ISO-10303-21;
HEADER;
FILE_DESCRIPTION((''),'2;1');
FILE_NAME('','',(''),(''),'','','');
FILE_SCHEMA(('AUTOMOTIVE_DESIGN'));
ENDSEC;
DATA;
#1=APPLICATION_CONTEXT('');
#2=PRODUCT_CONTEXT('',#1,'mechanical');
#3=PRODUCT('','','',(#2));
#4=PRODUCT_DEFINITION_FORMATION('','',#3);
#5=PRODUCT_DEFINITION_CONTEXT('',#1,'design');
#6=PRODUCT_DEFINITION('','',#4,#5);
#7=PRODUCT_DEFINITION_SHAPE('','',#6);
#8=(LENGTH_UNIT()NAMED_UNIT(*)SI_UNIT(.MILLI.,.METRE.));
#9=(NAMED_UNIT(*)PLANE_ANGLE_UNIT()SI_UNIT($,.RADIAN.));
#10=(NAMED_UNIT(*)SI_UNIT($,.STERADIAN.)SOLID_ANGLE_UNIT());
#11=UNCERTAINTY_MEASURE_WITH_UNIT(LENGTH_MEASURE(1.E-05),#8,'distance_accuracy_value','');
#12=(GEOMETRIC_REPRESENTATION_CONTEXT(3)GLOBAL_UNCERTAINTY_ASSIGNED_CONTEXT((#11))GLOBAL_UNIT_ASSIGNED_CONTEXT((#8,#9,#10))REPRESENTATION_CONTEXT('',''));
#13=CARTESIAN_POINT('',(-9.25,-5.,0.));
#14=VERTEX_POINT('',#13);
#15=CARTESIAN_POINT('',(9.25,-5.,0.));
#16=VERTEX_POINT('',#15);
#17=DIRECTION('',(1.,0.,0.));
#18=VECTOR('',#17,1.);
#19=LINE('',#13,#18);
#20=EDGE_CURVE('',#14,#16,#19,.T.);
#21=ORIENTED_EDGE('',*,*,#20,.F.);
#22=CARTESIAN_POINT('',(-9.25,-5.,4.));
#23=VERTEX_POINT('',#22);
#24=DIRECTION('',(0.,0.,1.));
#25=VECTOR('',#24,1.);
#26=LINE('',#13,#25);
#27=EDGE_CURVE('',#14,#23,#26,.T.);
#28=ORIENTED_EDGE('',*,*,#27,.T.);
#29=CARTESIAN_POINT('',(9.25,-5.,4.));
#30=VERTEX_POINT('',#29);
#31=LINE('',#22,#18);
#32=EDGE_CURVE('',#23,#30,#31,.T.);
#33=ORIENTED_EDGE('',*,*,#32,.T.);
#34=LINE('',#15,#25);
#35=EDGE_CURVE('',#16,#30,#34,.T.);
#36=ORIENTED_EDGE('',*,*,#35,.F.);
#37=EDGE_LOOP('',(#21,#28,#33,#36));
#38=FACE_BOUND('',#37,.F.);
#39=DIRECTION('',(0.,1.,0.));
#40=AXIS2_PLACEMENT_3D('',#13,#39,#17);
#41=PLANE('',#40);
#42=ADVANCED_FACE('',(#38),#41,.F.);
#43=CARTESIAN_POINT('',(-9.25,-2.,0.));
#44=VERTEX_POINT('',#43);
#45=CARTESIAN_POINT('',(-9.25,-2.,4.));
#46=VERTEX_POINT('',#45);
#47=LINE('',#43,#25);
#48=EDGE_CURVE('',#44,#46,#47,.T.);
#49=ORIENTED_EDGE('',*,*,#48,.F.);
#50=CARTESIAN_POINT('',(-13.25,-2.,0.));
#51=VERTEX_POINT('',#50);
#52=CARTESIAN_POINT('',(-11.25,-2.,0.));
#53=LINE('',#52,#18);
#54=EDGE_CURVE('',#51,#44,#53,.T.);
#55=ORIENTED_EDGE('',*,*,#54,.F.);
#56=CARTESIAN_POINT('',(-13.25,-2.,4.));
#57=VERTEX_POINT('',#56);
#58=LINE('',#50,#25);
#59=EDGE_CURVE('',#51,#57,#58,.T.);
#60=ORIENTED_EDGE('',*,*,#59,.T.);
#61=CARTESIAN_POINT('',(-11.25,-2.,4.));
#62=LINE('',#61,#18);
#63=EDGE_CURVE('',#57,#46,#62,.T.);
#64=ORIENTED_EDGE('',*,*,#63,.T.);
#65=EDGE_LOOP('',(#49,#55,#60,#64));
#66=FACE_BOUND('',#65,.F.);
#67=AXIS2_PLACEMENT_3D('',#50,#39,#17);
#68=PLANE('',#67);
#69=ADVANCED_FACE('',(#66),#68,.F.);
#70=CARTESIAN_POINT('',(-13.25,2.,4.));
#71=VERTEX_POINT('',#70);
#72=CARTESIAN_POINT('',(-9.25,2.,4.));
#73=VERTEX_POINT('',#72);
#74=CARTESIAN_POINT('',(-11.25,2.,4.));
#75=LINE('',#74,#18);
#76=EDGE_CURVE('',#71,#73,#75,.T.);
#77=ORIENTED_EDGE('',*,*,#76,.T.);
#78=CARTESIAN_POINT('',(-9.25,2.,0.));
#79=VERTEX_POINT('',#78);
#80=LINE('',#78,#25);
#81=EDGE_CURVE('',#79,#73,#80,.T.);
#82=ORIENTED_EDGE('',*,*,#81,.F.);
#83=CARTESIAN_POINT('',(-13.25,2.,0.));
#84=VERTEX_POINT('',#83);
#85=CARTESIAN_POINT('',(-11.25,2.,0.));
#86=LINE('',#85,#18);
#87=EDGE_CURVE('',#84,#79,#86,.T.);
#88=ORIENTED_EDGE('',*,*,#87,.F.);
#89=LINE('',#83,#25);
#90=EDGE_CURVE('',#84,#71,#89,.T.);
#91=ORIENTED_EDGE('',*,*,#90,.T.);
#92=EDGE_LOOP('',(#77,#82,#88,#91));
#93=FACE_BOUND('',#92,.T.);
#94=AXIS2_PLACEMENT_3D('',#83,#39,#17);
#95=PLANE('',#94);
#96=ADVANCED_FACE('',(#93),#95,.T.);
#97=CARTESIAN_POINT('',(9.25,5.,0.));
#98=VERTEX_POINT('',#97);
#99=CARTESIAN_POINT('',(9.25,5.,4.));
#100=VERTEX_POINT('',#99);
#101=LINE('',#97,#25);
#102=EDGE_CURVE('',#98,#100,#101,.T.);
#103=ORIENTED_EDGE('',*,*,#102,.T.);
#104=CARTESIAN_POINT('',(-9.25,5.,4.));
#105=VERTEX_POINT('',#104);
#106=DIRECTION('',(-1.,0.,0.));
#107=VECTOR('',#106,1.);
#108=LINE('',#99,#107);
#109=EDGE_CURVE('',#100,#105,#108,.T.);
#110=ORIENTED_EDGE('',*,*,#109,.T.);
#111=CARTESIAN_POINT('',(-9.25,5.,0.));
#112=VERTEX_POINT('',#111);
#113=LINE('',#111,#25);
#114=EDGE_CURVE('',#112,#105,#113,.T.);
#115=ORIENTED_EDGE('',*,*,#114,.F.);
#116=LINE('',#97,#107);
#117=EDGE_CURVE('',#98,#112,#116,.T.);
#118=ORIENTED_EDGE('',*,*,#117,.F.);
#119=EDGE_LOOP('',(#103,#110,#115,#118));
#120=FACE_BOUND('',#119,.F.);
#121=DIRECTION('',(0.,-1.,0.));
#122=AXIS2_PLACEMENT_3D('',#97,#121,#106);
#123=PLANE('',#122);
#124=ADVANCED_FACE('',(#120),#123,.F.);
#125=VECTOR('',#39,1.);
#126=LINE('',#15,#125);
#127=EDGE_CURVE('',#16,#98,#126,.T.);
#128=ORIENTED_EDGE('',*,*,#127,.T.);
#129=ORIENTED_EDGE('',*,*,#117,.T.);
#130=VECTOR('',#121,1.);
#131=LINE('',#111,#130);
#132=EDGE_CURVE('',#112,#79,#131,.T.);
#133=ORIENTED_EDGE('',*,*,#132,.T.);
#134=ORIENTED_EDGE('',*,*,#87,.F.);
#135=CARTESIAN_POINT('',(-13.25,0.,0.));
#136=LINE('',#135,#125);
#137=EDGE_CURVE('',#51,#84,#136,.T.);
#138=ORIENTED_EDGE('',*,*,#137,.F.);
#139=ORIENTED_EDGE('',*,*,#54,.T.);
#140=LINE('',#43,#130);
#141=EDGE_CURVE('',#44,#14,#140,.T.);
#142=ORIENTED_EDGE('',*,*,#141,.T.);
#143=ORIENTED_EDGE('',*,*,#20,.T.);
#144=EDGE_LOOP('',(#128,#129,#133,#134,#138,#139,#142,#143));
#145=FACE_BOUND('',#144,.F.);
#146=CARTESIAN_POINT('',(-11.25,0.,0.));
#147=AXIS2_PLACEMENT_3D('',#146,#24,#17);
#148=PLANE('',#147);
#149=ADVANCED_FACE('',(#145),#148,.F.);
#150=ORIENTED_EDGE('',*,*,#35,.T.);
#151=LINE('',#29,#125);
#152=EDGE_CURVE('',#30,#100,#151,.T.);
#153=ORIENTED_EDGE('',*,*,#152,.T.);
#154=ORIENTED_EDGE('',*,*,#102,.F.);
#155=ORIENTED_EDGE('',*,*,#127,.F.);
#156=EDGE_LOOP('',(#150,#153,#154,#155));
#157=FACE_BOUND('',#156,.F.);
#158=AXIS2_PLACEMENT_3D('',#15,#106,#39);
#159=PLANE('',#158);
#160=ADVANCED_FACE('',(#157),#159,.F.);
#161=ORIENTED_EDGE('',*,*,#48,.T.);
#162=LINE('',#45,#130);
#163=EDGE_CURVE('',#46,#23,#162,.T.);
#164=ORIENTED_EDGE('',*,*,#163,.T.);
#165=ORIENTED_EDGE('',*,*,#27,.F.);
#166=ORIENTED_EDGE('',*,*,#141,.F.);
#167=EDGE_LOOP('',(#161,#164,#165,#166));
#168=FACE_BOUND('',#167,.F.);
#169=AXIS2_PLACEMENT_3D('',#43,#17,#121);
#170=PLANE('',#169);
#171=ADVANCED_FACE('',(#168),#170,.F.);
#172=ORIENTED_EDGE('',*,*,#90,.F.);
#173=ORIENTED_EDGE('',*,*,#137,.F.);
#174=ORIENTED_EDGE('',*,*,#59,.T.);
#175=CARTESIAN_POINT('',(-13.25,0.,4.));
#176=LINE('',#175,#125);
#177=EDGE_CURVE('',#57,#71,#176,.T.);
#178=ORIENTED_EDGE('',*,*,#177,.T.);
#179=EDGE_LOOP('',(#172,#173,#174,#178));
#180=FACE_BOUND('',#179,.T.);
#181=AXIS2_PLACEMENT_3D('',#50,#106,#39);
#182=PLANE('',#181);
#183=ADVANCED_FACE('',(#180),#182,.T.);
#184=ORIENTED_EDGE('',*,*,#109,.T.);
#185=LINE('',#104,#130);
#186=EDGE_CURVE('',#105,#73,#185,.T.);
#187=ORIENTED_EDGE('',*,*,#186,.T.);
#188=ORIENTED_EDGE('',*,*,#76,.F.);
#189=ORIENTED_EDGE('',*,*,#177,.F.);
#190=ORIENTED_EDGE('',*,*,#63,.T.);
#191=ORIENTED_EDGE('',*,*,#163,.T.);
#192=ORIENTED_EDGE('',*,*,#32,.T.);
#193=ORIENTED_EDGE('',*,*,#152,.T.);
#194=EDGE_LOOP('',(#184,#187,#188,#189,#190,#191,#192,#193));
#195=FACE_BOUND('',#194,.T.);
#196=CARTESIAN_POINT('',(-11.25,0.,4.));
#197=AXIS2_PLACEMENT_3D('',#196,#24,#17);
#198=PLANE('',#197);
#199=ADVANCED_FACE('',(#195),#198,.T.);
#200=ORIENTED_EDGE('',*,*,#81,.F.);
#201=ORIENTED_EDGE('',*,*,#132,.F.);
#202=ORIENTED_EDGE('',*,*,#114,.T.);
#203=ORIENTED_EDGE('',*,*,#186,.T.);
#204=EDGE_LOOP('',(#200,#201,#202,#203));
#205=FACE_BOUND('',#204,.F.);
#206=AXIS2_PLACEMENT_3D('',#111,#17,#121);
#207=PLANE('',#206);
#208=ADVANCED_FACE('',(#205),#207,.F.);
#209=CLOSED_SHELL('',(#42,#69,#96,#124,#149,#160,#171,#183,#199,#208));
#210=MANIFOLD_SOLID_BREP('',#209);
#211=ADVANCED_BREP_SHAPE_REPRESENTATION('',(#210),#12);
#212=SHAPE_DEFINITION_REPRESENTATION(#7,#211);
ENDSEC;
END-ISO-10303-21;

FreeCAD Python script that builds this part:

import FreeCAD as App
import Part
import Sketcher

V = App.Vector

doc = App.newDocument("Part")
body = doc.addObject("PartDesign::Body", "Body")

# Sketch on XY plane
sketch1 = body.newObject("Sketcher::SketchObject", "Sketch")
sketch1.AttachmentSupport = (doc.getObject("XY_Plane"), [""])
sketch1.MapMode = "FlatFace"
sketch1.addGeometry([
    Part.LineSegment(V(-13.2, 2, 0), V(-13.2, -2, 0)),  # 0
    Part.LineSegment(V(-13.2, -2, 0), V(-9.2, -2, 0)),  # 1
    Part.LineSegment(V(-9.2, -2, 0), V(-9.2, -5, 0)),  # 2
    Part.LineSegment(V(-9.2, -5, 0), V(9.2, -5, 0)),  # 3
    Part.LineSegment(V(9.2, -5, 0), V(9.2, 5, 0)),  # 4
    Part.LineSegment(V(9.2, 5, 0), V(-9.2, 5, 0)),  # 5
    Part.LineSegment(V(-9.2, 5, 0), V(-9.2, 2, 0)),  # 6
    Part.LineSegment(V(-9.2, 2, 0), V(-13.2, 2, 0)),  # 7
], False)
sketch1.addConstraint([
    Sketcher.Constraint("Coincident", 0, 2, 1, 1),
    Sketcher.Constraint("Coincident", 1, 2, 2, 1),
    Sketcher.Constraint("Coincident", 2, 2, 3, 1),
    Sketcher.Constraint("Coincident", 3, 2, 4, 1),
    Sketcher.Constraint("Coincident", 4, 2, 5, 1),
    Sketcher.Constraint("Coincident", 5, 2, 6, 1),
    Sketcher.Constraint("Coincident", 6, 2, 7, 1),
    Sketcher.Constraint("Coincident", 7, 2, 0, 1),
    Sketcher.Constraint("Vertical", 0),
    Sketcher.Constraint("Horizontal", 1),
    Sketcher.Constraint("Vertical", 2),
    Sketcher.Constraint("Horizontal", 3),
    Sketcher.Constraint("Vertical", 4),
    Sketcher.Constraint("Horizontal", 5),
    Sketcher.Constraint("Vertical", 6),
    Sketcher.Constraint("Horizontal", 7),
    Sketcher.Constraint("Symmetric", 2, 2, 4, 2, -1, 1),
    Sketcher.Constraint("Symmetric", 1, 2, 6, 2, -1),
    Sketcher.Constraint("Equal", 7, 0),
    Sketcher.Constraint("DistanceX", 1, 1, 1, 2, 4.0),
    Sketcher.Constraint("DistanceY", 2, 2, 2, 1, 3.0),
    Sketcher.Constraint("DistanceX", 3, 1, 3, 2, 18.5),
])
pad1 = body.newObject("PartDesign::Pad", "Pad")
pad1.Profile = sketch1
pad1.Length = 4

doc.recompute()
